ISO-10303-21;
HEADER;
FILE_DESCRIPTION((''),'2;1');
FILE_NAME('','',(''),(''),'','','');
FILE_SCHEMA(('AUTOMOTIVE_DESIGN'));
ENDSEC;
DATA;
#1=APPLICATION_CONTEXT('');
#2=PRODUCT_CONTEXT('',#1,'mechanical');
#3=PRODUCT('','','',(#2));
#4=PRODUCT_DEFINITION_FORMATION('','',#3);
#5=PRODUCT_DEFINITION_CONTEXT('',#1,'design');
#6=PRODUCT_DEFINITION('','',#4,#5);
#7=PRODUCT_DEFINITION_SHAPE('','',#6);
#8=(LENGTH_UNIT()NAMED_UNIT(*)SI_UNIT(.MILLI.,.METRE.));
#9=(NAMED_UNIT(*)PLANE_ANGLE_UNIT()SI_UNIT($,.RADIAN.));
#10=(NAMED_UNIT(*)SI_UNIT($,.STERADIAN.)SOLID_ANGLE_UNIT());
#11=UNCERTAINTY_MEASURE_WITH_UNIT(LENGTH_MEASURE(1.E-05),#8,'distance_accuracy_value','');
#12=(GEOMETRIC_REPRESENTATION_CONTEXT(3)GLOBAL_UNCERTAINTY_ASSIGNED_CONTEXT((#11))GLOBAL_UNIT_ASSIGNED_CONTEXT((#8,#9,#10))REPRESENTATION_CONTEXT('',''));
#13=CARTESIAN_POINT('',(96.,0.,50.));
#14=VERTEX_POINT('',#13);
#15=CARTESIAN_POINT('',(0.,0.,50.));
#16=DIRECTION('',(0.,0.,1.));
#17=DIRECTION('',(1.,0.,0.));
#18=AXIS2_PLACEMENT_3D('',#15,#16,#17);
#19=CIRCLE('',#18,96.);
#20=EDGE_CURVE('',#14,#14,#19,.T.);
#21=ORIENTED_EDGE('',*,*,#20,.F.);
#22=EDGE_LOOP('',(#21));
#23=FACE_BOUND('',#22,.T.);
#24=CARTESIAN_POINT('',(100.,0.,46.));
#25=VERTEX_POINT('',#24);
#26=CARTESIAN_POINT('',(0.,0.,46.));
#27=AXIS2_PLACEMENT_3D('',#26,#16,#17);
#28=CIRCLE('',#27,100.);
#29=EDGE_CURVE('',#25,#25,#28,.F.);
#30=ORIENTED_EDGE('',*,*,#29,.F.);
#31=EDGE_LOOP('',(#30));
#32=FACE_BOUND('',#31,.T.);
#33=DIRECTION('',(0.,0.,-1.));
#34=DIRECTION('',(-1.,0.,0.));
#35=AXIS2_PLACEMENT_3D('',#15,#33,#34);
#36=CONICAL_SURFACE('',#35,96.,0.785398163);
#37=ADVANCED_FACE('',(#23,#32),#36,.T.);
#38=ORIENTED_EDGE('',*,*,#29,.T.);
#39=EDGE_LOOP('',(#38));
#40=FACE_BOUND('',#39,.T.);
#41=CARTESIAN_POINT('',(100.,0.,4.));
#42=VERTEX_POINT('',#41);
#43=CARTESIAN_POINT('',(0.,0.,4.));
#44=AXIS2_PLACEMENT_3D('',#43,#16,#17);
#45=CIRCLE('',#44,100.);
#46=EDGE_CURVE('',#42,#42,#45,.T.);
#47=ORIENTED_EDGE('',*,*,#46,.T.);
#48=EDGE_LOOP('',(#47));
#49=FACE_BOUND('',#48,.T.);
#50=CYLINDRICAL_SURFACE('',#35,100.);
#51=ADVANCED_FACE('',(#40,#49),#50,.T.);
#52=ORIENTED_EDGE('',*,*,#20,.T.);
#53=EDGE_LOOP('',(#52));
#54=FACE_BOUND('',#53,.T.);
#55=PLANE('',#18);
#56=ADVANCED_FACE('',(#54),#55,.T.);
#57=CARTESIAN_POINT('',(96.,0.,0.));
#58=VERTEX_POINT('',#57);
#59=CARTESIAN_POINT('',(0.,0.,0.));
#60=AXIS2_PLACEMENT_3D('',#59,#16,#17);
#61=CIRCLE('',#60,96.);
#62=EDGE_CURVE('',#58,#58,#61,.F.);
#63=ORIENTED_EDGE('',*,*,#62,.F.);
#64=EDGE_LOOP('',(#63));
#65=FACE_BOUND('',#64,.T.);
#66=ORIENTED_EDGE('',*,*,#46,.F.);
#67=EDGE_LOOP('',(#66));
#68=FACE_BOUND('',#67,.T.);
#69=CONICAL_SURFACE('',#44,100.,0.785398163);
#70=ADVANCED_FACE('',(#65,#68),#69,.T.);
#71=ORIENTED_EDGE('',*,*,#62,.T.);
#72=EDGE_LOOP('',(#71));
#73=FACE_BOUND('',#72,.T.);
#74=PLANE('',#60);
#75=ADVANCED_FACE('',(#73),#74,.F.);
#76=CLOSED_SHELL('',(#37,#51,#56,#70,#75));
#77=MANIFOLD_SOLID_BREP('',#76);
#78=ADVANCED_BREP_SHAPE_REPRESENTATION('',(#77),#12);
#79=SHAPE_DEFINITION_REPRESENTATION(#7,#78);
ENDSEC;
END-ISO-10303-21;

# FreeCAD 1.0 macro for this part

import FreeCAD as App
import Part
import Sketcher
from FreeCAD import Vector


def edges_at(feature, points):
    """Names of the edges that pass closest to the given points."""
    edges = feature.Shape.Edges
    near = lambda p: min(range(len(edges)), key=lambda i: edges[i].distToShape(Part.Vertex(*p))[0])
    return sorted({f"Edge{near(p) + 1}" for p in points})

doc = App.newDocument("Part")
body = doc.addObject("PartDesign::Body", "Body")

# Sketch on XY plane
sketch1 = body.newObject("Sketcher::SketchObject", "Sketch")
sketch1.AttachmentSupport = (doc.getObject("XY_Plane"), [""])
sketch1.MapMode = "FlatFace"
sketch1.addGeometry(Part.Circle(Vector(0, 0, 0), Vector(0, 0, 1), 100), False)
sketch1.addConstraint(Sketcher.Constraint("Coincident", 0, 3, -1, 1))
sketch1.addConstraint(Sketcher.Constraint("Diameter", 0, 200.0))
pad1 = body.newObject("PartDesign::Pad", "Pad")
pad1.Profile = sketch1
pad1.Length = 50
doc.recompute()

chamfer = body.newObject("PartDesign::Chamfer", "Chamfer")
chamfer.Base = (pad1, edges_at(pad1, [(-100, 0, 0)]))
chamfer.Size = 4
doc.recompute()

chamfer2 = body.newObject("PartDesign::Chamfer", "Chamfer001")
chamfer2.Base = (chamfer, edges_at(chamfer, [(-100, 0, 50)]))
chamfer2.Size = 4

doc.recompute()
